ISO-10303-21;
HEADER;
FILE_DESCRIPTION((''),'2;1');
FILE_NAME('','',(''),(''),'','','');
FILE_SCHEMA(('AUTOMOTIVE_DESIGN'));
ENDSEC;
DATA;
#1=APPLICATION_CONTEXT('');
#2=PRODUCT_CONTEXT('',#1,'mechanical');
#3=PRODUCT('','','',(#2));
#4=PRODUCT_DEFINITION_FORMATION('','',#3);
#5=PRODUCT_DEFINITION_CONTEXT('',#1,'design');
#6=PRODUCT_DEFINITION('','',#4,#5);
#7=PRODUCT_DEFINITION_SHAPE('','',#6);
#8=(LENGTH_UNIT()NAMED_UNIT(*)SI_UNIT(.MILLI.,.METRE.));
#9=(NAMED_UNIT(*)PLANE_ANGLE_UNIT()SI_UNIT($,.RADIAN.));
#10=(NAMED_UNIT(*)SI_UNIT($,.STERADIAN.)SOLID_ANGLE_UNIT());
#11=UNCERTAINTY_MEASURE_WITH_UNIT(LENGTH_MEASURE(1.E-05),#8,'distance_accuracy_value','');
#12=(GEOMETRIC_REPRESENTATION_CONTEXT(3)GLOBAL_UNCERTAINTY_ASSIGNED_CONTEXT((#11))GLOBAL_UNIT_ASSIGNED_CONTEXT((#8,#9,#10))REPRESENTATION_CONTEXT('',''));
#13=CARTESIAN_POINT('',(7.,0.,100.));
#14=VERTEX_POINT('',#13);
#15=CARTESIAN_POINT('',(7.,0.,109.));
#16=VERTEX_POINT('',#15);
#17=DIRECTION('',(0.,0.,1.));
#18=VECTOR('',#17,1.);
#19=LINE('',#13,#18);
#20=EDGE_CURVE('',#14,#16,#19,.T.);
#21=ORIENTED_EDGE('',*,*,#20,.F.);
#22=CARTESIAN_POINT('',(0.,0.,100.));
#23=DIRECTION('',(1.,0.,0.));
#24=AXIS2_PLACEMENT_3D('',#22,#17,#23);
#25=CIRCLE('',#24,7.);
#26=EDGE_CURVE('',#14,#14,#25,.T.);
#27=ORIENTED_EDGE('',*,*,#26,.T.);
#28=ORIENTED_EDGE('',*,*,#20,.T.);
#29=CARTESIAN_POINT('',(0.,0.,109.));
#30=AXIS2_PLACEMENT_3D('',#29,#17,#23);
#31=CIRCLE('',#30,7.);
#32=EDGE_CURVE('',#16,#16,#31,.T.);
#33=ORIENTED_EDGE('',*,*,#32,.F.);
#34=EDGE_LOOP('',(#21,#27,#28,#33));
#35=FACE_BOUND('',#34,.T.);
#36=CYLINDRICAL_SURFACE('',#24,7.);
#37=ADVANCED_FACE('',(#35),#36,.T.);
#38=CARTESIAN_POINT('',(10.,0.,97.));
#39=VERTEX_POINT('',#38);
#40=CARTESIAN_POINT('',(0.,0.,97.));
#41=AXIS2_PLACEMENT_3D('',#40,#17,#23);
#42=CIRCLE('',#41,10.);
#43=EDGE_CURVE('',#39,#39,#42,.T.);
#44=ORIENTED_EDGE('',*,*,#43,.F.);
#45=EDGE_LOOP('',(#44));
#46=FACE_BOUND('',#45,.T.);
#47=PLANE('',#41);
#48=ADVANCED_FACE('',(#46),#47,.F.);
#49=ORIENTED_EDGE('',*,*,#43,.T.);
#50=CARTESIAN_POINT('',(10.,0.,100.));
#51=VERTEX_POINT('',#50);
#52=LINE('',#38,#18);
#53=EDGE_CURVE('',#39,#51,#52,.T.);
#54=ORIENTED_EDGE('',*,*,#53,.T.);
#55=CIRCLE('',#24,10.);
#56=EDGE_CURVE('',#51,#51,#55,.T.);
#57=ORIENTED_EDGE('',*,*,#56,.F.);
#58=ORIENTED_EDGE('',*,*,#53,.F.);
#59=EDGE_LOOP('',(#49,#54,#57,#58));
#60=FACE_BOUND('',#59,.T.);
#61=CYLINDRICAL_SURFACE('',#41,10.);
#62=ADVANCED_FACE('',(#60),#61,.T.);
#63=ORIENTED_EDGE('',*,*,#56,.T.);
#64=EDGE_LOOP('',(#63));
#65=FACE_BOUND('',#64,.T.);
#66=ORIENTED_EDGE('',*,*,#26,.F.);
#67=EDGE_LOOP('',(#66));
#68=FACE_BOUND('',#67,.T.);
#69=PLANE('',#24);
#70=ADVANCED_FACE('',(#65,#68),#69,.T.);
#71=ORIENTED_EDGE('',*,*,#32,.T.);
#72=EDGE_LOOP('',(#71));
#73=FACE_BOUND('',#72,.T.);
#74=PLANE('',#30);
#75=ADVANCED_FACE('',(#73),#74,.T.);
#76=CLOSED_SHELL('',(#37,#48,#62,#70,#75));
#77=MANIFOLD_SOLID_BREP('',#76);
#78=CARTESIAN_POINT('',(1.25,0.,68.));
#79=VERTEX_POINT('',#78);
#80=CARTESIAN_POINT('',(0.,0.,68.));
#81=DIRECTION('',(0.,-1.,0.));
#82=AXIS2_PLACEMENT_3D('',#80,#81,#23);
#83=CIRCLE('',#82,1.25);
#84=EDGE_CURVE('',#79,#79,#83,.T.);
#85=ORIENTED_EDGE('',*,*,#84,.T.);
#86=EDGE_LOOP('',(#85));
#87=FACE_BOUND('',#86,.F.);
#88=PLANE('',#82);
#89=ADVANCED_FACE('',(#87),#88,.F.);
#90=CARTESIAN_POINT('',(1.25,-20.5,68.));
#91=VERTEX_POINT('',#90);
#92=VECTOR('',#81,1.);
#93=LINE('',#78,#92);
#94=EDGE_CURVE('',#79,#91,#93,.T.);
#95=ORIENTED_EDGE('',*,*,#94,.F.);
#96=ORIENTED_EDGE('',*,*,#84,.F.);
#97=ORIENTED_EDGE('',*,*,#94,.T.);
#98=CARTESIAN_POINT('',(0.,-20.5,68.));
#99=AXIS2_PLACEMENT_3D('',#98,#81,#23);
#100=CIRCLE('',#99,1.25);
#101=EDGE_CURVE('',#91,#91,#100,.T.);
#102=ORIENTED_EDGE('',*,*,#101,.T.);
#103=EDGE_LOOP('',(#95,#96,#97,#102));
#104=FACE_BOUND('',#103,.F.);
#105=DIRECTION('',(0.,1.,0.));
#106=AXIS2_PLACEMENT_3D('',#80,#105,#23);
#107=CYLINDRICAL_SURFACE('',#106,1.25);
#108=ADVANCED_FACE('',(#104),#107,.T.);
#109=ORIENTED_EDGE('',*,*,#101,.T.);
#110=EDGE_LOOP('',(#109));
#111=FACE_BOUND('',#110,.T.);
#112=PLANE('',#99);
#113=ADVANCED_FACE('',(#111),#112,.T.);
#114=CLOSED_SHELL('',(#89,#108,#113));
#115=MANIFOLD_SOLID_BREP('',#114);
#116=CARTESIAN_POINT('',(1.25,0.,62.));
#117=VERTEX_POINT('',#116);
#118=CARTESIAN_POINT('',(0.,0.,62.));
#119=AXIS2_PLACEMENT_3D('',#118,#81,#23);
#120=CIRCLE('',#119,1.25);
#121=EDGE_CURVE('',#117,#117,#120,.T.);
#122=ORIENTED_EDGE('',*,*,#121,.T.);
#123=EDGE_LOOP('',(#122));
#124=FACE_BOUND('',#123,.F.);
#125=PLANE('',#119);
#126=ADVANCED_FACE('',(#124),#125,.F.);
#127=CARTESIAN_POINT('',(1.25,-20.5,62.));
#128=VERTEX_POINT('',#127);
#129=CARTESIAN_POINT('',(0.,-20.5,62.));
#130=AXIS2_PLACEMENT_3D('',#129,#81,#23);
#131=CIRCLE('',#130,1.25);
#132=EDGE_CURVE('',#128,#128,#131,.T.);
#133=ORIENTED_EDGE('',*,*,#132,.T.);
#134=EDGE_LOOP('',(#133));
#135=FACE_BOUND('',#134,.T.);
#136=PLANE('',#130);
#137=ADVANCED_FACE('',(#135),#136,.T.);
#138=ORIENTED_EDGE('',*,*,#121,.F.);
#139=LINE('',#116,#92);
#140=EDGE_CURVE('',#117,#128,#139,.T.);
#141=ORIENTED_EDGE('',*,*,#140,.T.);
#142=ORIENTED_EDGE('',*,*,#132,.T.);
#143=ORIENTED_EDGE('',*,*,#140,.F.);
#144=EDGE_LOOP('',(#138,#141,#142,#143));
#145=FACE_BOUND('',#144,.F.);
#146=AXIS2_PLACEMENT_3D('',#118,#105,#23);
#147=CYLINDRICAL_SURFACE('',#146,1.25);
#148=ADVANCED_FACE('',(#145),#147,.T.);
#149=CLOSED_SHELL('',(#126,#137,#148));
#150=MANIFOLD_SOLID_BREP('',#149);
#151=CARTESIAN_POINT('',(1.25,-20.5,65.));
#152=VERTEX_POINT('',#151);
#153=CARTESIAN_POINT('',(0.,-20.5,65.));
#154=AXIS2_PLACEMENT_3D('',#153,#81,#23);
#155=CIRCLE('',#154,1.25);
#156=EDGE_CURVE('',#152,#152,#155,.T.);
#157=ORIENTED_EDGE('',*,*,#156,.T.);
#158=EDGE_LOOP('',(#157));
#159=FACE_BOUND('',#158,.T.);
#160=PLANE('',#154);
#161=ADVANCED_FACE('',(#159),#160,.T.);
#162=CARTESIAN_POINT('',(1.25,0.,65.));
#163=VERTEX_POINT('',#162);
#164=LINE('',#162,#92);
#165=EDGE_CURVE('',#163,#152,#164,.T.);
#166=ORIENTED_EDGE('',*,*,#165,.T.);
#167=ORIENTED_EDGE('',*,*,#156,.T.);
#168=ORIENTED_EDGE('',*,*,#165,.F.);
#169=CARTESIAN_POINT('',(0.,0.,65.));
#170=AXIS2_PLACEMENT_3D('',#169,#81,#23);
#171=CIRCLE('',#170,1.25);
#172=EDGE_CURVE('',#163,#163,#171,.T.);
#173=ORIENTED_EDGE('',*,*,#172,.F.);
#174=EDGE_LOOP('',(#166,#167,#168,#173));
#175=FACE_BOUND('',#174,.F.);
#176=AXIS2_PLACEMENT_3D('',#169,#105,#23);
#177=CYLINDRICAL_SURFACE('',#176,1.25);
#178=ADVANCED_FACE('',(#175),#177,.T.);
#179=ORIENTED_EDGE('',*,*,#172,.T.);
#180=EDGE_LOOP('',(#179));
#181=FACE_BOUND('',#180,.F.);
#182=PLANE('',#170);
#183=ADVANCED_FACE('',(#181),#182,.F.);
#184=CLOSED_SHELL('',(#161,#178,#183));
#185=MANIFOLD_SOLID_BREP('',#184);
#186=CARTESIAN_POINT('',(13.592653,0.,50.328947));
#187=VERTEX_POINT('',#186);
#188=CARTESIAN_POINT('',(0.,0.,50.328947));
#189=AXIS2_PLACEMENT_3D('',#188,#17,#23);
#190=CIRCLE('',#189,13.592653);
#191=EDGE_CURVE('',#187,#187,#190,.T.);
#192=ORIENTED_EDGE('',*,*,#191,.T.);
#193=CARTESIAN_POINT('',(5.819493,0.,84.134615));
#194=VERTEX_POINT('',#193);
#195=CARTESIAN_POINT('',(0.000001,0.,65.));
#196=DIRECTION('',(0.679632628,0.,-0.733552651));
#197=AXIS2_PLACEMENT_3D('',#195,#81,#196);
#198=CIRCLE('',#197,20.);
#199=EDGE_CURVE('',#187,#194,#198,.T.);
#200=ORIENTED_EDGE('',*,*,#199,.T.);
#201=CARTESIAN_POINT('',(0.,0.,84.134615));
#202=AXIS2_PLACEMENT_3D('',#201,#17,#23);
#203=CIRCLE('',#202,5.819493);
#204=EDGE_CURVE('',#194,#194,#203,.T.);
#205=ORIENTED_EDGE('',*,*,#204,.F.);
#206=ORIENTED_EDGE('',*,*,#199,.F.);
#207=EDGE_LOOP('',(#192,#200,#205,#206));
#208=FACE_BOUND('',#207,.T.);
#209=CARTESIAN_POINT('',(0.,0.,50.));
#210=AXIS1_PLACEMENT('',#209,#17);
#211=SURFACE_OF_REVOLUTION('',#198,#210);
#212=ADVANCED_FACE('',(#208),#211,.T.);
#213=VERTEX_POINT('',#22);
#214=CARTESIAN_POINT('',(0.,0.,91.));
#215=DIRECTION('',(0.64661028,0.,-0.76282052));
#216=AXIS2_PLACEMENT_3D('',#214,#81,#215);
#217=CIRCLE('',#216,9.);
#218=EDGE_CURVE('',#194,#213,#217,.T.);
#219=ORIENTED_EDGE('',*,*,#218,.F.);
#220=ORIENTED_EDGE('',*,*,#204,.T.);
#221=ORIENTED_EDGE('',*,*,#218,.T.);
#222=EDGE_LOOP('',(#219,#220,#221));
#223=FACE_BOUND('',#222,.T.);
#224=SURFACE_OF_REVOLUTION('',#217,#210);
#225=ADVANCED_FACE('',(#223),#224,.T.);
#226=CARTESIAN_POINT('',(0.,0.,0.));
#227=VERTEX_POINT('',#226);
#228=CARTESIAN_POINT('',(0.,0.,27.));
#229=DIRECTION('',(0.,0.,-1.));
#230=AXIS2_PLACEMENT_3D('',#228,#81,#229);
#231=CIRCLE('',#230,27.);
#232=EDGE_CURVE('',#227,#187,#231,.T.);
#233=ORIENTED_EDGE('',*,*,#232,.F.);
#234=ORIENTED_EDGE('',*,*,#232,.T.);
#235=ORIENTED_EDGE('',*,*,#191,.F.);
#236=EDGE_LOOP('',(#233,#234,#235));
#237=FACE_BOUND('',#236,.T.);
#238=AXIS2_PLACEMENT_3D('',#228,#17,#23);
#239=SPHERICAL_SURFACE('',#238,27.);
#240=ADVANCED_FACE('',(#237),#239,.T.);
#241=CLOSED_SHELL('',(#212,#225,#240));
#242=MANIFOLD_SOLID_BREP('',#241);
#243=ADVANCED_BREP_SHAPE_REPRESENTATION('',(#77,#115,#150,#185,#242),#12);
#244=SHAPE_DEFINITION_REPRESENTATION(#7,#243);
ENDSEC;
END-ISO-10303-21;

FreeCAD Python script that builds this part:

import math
import FreeCAD as App
import Part
import Sketcher
Q = App.Units.Quantity

doc = App.newDocument("Part")
params = doc.addObject("Spreadsheet::Sheet", "Params")
for row, (alias, value) in enumerate([
    ("sketch1_radius", "27 mm"),
    ("sketch1_radius2", "20 mm"),
    ("sketch1_radius3", "9 mm"),
    ("sketch1_height", "100 mm"),
    ("revolution_angle", "360 deg"),
    ("sketch2_width", "10 mm"),
    ("sketch2_width2", "3 mm"),
    ("sketch2_height", "12 mm"),
    ("revolution2_angle", "360 deg"),
    ("sketch3_diameter", "2.5 mm"),
    ("pad1_length", "20.5 mm"),
], start=1):
    params.set(f"A{row}", alias)
    params.set(f"B{row}", "=" + value)
    params.setAlias(f"B{row}", alias)

body = doc.addObject("PartDesign::Body", "Body")

sketch1 = body.newObject("Sketcher::SketchObject", "Sketch")
sketch1.AttachmentSupport = (doc.getObject("XZ_Plane"), [""])
sketch1.MapMode = "FlatFace"
sketch1.addGeometry([
    Part.LineSegment(App.Vector(0, 100, 0), App.Vector(0, 0, 0)),
    Part.ArcOfCircle(Part.Circle(App.Vector(0, 27, 0), App.Vector(0, 0, 1), 27), math.radians(-90), math.radians(60)),
    Part.ArcOfCircle(Part.Circle(App.Vector(0, 65, 0), App.Vector(0, 0, 1), 20), math.radians(-47), math.radians(73)),
    Part.ArcOfCircle(Part.Circle(App.Vector(0, 91, 0), App.Vector(0, 0, 1), 9), math.radians(-50), math.radians(90)),
], False)
sketch1.addConstraint([
    Sketcher.Constraint("Coincident", 0, 2, 1, 1),
    Sketcher.Constraint("Coincident", 1, 2, 2, 1),
    Sketcher.Constraint("Coincident", 2, 2, 3, 1),
    Sketcher.Constraint("Coincident", 3, 2, 0, 1),
    Sketcher.Constraint("Vertical", 0),
    Sketcher.Constraint("Coincident", 0, 2, -1, 1),
    Sketcher.Constraint("PointOnObject", 1, 3, -2),
    Sketcher.Constraint("PointOnObject", 2, 3, -2),
    Sketcher.Constraint("PointOnObject", 3, 3, -2),
    Sketcher.Constraint("Radius", 1, Q("27 mm")),
    Sketcher.Constraint("Radius", 2, Q("20 mm")),
    Sketcher.Constraint("Radius", 3, Q("9 mm")),
    Sketcher.Constraint("DistanceY", 0, 2, 0, 1, Q("100 mm")),
    Sketcher.Constraint("DistanceY", -1, 1, 2, 3, Q("65 mm")),
])
sketch1.setExpression("Constraints[9]", "Params.sketch1_radius")
sketch1.setExpression("Constraints[10]", "Params.sketch1_radius2")
sketch1.setExpression("Constraints[11]", "Params.sketch1_radius3")
sketch1.setExpression("Constraints[12]", "Params.sketch1_height")
revolution = body.newObject("PartDesign::Revolution", "Revolution")
revolution.Profile = sketch1
revolution.ReferenceAxis = (sketch1, ["V_Axis"])
revolution.setExpression("Angle", "Params.revolution_angle")
body2 = doc.addObject("PartDesign::Body", "Body001")

sketch2 = body2.newObject("Sketcher::SketchObject", "Sketch001")
sketch2.AttachmentSupport = (doc.getObject("XZ_Plane001"), [""])
sketch2.MapMode = "FlatFace"
sketch2.addGeometry([
    Part.LineSegment(App.Vector(0, 109, 0), App.Vector(0, 97, 0)),
    Part.LineSegment(App.Vector(0, 97, 0), App.Vector(10, 97, 0)),
    Part.LineSegment(App.Vector(10, 97, 0), App.Vector(10, 100, 0)),
    Part.LineSegment(App.Vector(10, 100, 0), App.Vector(7, 100, 0)),
    Part.LineSegment(App.Vector(7, 100, 0), App.Vector(7, 109, 0)),
    Part.LineSegment(App.Vector(7, 109, 0), App.Vector(0, 109, 0)),
], False)
sketch2.addConstraint([
    Sketcher.Constraint("Coincident", 0, 2, 1, 1),
    Sketcher.Constraint("Coincident", 1, 2, 2, 1),
    Sketcher.Constraint("Coincident", 2, 2, 3, 1),
    Sketcher.Constraint("Coincident", 3, 2, 4, 1),
    Sketcher.Constraint("Coincident", 4, 2, 5, 1),
    Sketcher.Constraint("Coincident", 5, 2, 0, 1),
    Sketcher.Constraint("Vertical", 0),
    Sketcher.Constraint("Horizontal", 1),
    Sketcher.Constraint("Vertical", 2),
    Sketcher.Constraint("Horizontal", 3),
    Sketcher.Constraint("Vertical", 4),
    Sketcher.Constraint("Horizontal", 5),
    Sketcher.Constraint("PointOnObject", 0, 2, -2),
    Sketcher.Constraint("Equal", 3, 2),
    Sketcher.Constraint("DistanceX", 1, 1, 1, 2, Q("10 mm")),
    Sketcher.Constraint("DistanceX", 3, 2, 3, 1, Q("3 mm")),
    Sketcher.Constraint("DistanceY", 0, 2, 0, 1, Q("12 mm")),
    Sketcher.Constraint("DistanceY", -1, 1, 0, 2, Q("97 mm")),
])
sketch2.setExpression("Constraints[14]", "Params.sketch2_width")
sketch2.setExpression("Constraints[15]", "Params.sketch2_width2")
sketch2.setExpression("Constraints[16]", "Params.sketch2_height")
revolution2 = body2.newObject("PartDesign::Revolution", "Revolution001")
revolution2.Profile = sketch2
revolution2.ReferenceAxis = (sketch2, ["V_Axis"])
revolution2.setExpression("Angle", "Params.revolution2_angle")
body3 = doc.addObject("PartDesign::Body", "Body002")
body3.AllowCompound = True

sketch3 = body3.newObject("Sketcher::SketchObject", "Sketch002")
sketch3.AttachmentSupport = (doc.getObject("XZ_Plane002"), [""])
sketch3.MapMode = "FlatFace"
sketch3.addGeometry([
    Part.Circle(App.Vector(0, 68, 0), App.Vector(0, 0, 1), 1.2),
    Part.Circle(App.Vector(0, 65, 0), App.Vector(0, 0, 1), 1.2),
    Part.Circle(App.Vector(0, 62, 0), App.Vector(0, 0, 1), 1.2),
], False)
sketch3.addConstraint([
    Sketcher.Constraint("Equal", 0, 1),
    Sketcher.Constraint("Equal", 1, 2),
    Sketcher.Constraint("PointOnObject", 0, 3, -2),
    Sketcher.Constraint("PointOnObject", 1, 3, -2),
    Sketcher.Constraint("PointOnObject", 2, 3, -2),
    Sketcher.Constraint("Diameter", 0, Q("2.5 mm")),
    Sketcher.Constraint("DistanceY", -1, 1, 0, 3, Q("68 mm")),
    Sketcher.Constraint("DistanceY", -1, 1, 1, 3, Q("65 mm")),
    Sketcher.Constraint("DistanceY", -1, 1, 2, 3, Q("62 mm")),
])
sketch3.setExpression("Constraints[5]", "Params.sketch3_diameter")
pad1 = body3.newObject("PartDesign::Pad", "Pad")
pad1.Profile = sketch3
pad1.setExpression("Length", "Params.pad1_length")

doc.recompute()
